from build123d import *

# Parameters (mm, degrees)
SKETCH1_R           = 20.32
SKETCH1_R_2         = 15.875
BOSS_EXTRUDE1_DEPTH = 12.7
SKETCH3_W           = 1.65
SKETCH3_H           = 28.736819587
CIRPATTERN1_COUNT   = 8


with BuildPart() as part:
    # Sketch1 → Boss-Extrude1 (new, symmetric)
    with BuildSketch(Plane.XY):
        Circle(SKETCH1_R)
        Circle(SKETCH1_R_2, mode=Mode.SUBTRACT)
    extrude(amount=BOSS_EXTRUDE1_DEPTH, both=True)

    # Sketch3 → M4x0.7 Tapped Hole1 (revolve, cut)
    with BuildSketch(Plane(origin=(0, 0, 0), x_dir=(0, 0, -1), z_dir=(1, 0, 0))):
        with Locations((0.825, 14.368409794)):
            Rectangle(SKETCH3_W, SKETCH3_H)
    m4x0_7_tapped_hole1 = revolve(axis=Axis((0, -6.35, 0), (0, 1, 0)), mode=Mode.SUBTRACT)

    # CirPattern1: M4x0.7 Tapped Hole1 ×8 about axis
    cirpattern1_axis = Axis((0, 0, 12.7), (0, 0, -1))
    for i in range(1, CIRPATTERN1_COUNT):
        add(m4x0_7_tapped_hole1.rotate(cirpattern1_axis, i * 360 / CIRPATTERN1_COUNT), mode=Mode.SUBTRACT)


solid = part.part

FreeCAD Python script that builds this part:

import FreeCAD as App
import Part
import Sketcher

V = App.Vector
Q = App.Units.Quantity

doc = App.newDocument("Part")
body = doc.addObject("PartDesign::Body", "Body")

# Sketch on XY plane
sketch1 = body.newObject("Sketcher::SketchObject", "Sketch")
sketch1.AttachmentSupport = (doc.getObject("XY_Plane"), [""])
sketch1.MapMode = "FlatFace"
sketch1.addGeometry(Part.Circle(V(0, 0, 0), V(0, 0, 1), 20.32), False)
sketch1.addGeometry(Part.Circle(V(0, 0, 0), V(0, 0, 1), 15.875), False)
sketch1.addConstraint(Sketcher.Constraint("Coincident", 0, 3, -1, 1))
sketch1.addConstraint(Sketcher.Constraint("Coincident", 1, 3, -1, 1))
sketch1.addConstraint(Sketcher.Constraint("Diameter", 0, Q("1.6 in")))
sketch1.addConstraint(Sketcher.Constraint("Diameter", 1, Q("1.25 in")))
pad1 = body.newObject("PartDesign::Pad", "Pad")
pad1.Profile = sketch1
pad1.Length = Q("1 in")
pad1.Midplane = True

# Sketch on YZ plane
sketch2 = body.newObject("Sketcher::SketchObject", "Sketch001")
sketch2.AttachmentSupport = (doc.getObject("YZ_Plane"), [""])
sketch2.MapMode = "FlatFace"
sketch2.addGeometry(Part.LineSegment(V(28.73682, 0, 0), V(0, 0, 0)), False)
sketch2.addGeometry(Part.LineSegment(V(0, 0, 0), V(0, -1.65, 0)), False)
sketch2.addGeometry(Part.LineSegment(V(0, -1.65, 0), V(28.73682, -1.65, 0)), False)
sketch2.addGeometry(Part.LineSegment(V(28.73682, -1.65, 0), V(28.73682, 0, 0)), False)
sketch2.addConstraint(Sketcher.Constraint("Coincident", 0, 2, 1, 1))
sketch2.addConstraint(Sketcher.Constraint("Coincident", 1, 2, 2, 1))
sketch2.addConstraint(Sketcher.Constraint("Coincident", 2, 2, 3, 1))
sketch2.addConstraint(Sketcher.Constraint("Coincident", 3, 2, 0, 1))
sketch2.addConstraint(Sketcher.Constraint("Horizontal", 0))
sketch2.addConstraint(Sketcher.Constraint("Vertical", 1))
sketch2.addConstraint(Sketcher.Constraint("Horizontal", 2))
sketch2.addConstraint(Sketcher.Constraint("Vertical", 3))
sketch2.addConstraint(Sketcher.Constraint("Coincident", 0, 2, -1, 1))
sketch2.addConstraint(Sketcher.Constraint("DistanceY", 1, 2, 1, 1, Q("1.65 mm")))
sketch2.addConstraint(Sketcher.Constraint("DistanceX", 0, 2, 0, 1, Q("28.73682 mm")))
groove = body.newObject("PartDesign::Groove", "Groove")
groove.Profile = sketch2
groove.ReferenceAxis = (sketch2, ["H_Axis"])
groove.Angle = 360
doc.recompute()

polarpattern = body.newObject("PartDesign::PolarPattern", "PolarPattern")
polarpattern.Originals = [groove]
polarpattern.Axis = (doc.getObject("Z_Axis"), [""])
polarpattern.Angle = 360
polarpattern.Occurrences = 8
body.Tip = polarpattern

doc.recompute()
